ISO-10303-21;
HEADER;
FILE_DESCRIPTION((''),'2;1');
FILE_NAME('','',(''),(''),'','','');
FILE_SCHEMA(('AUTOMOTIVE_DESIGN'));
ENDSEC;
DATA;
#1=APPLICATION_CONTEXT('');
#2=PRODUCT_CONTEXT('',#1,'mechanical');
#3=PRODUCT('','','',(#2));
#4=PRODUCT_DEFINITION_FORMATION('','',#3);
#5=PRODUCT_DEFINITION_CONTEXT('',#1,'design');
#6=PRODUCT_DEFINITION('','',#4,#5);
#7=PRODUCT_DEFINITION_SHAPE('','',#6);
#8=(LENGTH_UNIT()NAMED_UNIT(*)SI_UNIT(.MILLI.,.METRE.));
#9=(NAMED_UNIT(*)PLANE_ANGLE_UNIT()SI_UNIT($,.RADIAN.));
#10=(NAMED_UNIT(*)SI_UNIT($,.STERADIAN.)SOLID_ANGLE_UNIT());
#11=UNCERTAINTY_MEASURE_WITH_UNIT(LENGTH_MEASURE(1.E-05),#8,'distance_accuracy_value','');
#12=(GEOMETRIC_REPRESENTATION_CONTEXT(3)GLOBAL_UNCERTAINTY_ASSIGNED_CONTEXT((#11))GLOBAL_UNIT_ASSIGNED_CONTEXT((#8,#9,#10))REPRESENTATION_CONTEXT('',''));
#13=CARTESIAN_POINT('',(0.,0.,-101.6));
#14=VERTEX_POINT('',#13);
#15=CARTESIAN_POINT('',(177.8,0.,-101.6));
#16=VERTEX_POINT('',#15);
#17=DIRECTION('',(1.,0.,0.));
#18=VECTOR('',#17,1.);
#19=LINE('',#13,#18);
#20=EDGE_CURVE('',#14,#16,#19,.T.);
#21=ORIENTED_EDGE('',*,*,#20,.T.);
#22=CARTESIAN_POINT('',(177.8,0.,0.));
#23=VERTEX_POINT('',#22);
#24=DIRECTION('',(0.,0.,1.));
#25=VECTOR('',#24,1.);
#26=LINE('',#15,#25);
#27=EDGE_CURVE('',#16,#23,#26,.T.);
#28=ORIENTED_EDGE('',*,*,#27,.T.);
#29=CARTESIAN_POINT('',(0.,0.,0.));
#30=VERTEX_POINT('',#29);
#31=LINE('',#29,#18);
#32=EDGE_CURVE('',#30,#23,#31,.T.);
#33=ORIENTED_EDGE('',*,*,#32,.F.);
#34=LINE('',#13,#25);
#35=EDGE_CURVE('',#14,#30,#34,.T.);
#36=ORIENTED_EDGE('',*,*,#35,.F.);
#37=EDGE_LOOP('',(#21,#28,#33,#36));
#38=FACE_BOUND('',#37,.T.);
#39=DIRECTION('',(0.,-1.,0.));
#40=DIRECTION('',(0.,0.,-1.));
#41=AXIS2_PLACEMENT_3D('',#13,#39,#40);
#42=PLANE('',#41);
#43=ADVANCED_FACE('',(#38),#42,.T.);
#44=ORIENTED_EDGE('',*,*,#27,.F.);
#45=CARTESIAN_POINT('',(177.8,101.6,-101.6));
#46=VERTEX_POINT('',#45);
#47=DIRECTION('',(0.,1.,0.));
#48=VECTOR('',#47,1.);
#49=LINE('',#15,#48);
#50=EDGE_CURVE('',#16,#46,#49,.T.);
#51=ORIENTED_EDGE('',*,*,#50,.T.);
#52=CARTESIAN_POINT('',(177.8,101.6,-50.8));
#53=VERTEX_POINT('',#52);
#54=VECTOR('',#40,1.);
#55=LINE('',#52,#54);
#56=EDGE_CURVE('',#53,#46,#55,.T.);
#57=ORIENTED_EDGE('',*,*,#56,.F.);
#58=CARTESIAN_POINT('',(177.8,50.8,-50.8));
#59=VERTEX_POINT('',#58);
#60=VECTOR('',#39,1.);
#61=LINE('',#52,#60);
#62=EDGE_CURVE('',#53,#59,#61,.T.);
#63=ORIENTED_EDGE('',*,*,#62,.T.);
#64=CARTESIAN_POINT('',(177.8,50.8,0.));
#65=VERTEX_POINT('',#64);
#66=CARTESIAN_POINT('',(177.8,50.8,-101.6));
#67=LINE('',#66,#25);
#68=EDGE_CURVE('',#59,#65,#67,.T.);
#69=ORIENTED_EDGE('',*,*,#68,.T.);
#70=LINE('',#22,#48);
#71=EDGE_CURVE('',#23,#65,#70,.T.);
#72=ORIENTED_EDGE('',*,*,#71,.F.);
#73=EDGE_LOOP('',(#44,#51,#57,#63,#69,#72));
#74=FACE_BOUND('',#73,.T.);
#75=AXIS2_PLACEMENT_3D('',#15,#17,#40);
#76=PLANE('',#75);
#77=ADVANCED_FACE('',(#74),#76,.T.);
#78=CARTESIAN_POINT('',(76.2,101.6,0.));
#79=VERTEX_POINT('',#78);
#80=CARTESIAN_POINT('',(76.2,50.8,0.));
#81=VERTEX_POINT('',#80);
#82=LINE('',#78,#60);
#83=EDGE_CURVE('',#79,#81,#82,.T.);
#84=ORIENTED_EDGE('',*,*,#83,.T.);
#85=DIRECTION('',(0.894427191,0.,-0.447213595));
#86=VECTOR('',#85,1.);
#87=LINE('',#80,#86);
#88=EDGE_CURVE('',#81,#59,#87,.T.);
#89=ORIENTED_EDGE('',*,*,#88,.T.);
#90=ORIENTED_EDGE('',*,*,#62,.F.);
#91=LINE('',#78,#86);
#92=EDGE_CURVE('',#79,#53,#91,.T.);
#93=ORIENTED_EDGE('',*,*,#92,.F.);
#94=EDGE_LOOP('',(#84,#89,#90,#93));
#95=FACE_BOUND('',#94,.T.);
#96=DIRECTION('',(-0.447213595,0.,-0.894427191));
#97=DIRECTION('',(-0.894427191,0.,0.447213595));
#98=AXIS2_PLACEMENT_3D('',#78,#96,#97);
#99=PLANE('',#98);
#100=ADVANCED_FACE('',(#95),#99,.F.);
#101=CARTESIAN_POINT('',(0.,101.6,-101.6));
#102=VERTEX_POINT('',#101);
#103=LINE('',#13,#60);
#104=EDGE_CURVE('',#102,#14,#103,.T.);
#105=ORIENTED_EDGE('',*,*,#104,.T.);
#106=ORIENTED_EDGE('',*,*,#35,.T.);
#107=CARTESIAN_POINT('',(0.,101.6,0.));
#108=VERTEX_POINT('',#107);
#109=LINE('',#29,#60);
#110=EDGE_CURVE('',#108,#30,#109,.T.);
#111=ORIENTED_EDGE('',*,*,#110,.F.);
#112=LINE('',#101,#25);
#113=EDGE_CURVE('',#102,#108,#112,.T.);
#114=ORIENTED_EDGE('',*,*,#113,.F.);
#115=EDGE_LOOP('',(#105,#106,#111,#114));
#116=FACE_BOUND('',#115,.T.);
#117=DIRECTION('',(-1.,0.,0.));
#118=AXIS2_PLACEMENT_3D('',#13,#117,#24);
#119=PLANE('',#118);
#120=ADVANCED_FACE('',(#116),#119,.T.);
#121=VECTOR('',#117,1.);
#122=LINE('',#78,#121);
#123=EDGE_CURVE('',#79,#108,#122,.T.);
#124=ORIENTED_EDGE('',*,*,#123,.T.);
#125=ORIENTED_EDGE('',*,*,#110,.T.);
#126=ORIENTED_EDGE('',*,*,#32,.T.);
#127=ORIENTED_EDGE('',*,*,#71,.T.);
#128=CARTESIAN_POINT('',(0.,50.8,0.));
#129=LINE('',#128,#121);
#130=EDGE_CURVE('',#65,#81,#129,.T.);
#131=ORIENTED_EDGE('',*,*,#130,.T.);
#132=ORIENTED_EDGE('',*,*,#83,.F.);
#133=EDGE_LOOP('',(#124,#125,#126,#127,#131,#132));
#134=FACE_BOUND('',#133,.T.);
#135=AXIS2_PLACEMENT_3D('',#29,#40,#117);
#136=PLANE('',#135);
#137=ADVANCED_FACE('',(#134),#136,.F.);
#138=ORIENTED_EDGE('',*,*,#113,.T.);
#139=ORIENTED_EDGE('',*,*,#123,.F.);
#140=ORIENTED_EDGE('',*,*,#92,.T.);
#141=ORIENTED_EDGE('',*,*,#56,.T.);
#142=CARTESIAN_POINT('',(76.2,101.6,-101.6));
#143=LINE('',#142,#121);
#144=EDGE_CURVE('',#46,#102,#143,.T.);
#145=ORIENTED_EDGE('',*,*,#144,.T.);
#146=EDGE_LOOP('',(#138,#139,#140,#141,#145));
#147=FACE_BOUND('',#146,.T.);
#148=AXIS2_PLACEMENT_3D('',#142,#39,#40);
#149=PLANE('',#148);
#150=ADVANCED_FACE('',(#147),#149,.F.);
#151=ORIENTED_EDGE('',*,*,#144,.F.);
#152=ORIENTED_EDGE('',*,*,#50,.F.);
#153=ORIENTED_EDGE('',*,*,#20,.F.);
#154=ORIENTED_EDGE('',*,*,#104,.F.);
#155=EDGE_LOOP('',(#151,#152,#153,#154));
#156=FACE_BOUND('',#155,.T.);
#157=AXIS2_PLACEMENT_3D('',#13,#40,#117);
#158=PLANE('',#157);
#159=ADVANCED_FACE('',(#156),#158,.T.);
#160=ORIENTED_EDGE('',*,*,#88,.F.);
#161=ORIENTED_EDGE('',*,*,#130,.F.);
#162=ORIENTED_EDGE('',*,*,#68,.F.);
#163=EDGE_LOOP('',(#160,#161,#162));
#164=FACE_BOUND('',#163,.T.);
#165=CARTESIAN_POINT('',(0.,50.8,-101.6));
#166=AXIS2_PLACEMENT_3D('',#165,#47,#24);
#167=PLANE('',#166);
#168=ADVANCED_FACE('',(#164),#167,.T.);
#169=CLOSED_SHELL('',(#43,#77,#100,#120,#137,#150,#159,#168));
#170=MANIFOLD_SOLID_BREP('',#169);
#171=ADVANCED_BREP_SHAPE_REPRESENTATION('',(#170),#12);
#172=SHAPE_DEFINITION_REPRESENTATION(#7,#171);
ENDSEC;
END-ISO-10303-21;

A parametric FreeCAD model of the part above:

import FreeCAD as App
import Part
import Sketcher
from FreeCAD import Vector
Q = App.Units.Quantity


def add_polygon(sketch, points):
    """Adds a closed chain of lines whose ends are joined by coincident constraints."""
    first, n = sketch.GeometryCount, len(points)
    for a, b in zip(points, points[1:] + points[:1]):
        sketch.addGeometry(Part.LineSegment(App.Vector(*a, 0), App.Vector(*b, 0)), False)
    for i in range(n):
        sketch.addConstraint(Sketcher.Constraint("Coincident", first + i, 2, first + (i + 1) % n, 1))

doc = App.newDocument("Part")
params = doc.addObject("Spreadsheet::Sheet", "Params")
for row, (alias, value) in enumerate([
    ("sketch1_width", "7 in"),
    ("sketch1_height", "2 in"),
    ("pad1_length", "4 in"),
    ("sketch2_width", "2 in"),
    ("sketch2_height", "4 in"),
    ("pad2_length", "3 in"),
    ("sketch3_height", "2 in"),
    ("pad3_length", "2 in"),
    ("sketch4_width", "4 in"),
    ("sketch4_height", "2 in"),
], start=1):
    params.set(f"A{row}", alias)
    params.set(f"B{row}", "=" + value)
    params.setAlias(f"B{row}", alias)

body = doc.addObject("PartDesign::Body", "Body")

sketch1 = body.newObject("Sketcher::SketchObject", "Sketch")
sketch1.AttachmentSupport = (doc.getObject("XY_Plane"), [""])
sketch1.MapMode = "FlatFace"
add_polygon(sketch1, [(0, 51), (0, 0), (178, 0), (178, 51)])
sketch1.addConstraint([
    Sketcher.Constraint("Vertical", 0),
    Sketcher.Constraint("Horizontal", 1),
    Sketcher.Constraint("Vertical", 2),
    Sketcher.Constraint("Horizontal", 3),
    Sketcher.Constraint("Coincident", 0, 2, -1, 1),
    Sketcher.Constraint("DistanceX", 1, 1, 1, 2, Q("7 in")),
    Sketcher.Constraint("DistanceY", 0, 2, 0, 1, Q("2 in")),
])
sketch1.setExpression("Constraints[9]", "Params.sketch1_width")
sketch1.setExpression("Constraints[10]", "Params.sketch1_height")
pad1 = body.newObject("PartDesign::Pad", "Pad")
pad1.Profile = sketch1
pad1.setExpression("Length", "Params.pad1_length")
pad1.Reversed = True

sketch2 = body.newObject("Sketcher::SketchObject", "Sketch001")
sketch2.AttachmentSupport = (doc.getObject("YZ_Plane"), [""])
sketch2.MapMode = "FlatFace"
add_polygon(sketch2, [(102, 0), (51, 0), (51, -102), (102, -102)])
sketch2.addConstraint([
    Sketcher.Constraint("Horizontal", 0),
    Sketcher.Constraint("Vertical", 1),
    Sketcher.Constraint("Horizontal", 2),
    Sketcher.Constraint("Vertical", 3),
    Sketcher.Constraint("PointOnObject", 0, 2, -1),
    Sketcher.Constraint("DistanceX", 0, 2, 0, 1, Q("2 in")),
    Sketcher.Constraint("DistanceY", 1, 2, 1, 1, Q("4 in")),
    Sketcher.Constraint("DistanceX", -1, 1, 0, 2, Q("2 in")),
])
sketch2.setExpression("Constraints[9]", "Params.sketch2_width")
sketch2.setExpression("Constraints[10]", "Params.sketch2_height")
pad2 = body.newObject("PartDesign::Pad", "Pad001")
pad2.Profile = sketch2
pad2.setExpression("Length", "Params.pad2_length")

sketch3 = body.newObject("Sketcher::SketchObject", "Sketch002")
sketch3.AttachmentSupport = (doc.getObject("XZ_Plane"), [""])
sketch3.MapMode = "FlatFace"
sketch3.AttachmentOffset = App.Placement(Vector(0, 0, -2 * 25.4), App.Rotation())
add_polygon(sketch3, [(76.2, -50.8), (76.2, 0), (177.8, -50.8), (177.8, -101.6), (177.4, -101.6), (177.4, -50.8)])
sketch3.addConstraint([
    Sketcher.Constraint("Vertical", 0),
    Sketcher.Constraint("Vertical", 2),
    Sketcher.Constraint("Horizontal", 3),
    Sketcher.Constraint("Vertical", 4),
    Sketcher.Constraint("Horizontal", 5),
    Sketcher.Constraint("PointOnObject", 0, 2, -1),
    Sketcher.Constraint("Horizontal", 1, 2, 4, 2),
    Sketcher.Constraint("Equal", 0, 2),
    Sketcher.Constraint("DistanceY", 0, 1, 0, 2, Q("2 in")),
    Sketcher.Constraint("DistanceX", -1, 1, 0, 2, Q("3 in")),
    Sketcher.Constraint("DistanceX", -1, 1, 1, 2, Q("7 in")),
    Sketcher.Constraint("DistanceX", 3, 2, 3, 1, Q("0.404194 mm")),
])
sketch3.setExpression("Constraints[14]", "Params.sketch3_height")
pad3 = body.newObject("PartDesign::Pad", "Pad002")
pad3.Profile = sketch3
pad3.setExpression("Length", "Params.pad3_length")
pad3.Reversed = True

sketch4 = body.newObject("Sketcher::SketchObject", "Sketch003")
sketch4.AttachmentSupport = (doc.getObject("XY_Plane"), [""])
sketch4.MapMode = "FlatFace"
sketch4.AttachmentOffset = App.Placement(Vector(0, 0, -4 * 25.4), App.Rotation())
add_polygon(sketch4, [(76, 102), (76, 51), (178, 51), (178, 102)])
sketch4.addConstraint([
    Sketcher.Constraint("Vertical", 0),
    Sketcher.Constraint("Horizontal", 1),
    Sketcher.Constraint("Vertical", 2),
    Sketcher.Constraint("Horizontal", 3),
    Sketcher.Constraint("DistanceX", 1, 1, 1, 2, Q("4 in")),
    Sketcher.Constraint("DistanceY", 0, 2, 0, 1, Q("2 in")),
    Sketcher.Constraint("DistanceX", -1, 1, 0, 2, Q("3 in")),
    Sketcher.Constraint("DistanceY", -1, 1, 0, 2, Q("2 in")),
])
sketch4.setExpression("Constraints[8]", "Params.sketch4_width")
sketch4.setExpression("Constraints[9]", "Params.sketch4_height")
pad4 = body.newObject("PartDesign::Pad", "Pad003")
pad4.Profile = sketch4
pad4.Type = "UpToFirst"

doc.recompute()
